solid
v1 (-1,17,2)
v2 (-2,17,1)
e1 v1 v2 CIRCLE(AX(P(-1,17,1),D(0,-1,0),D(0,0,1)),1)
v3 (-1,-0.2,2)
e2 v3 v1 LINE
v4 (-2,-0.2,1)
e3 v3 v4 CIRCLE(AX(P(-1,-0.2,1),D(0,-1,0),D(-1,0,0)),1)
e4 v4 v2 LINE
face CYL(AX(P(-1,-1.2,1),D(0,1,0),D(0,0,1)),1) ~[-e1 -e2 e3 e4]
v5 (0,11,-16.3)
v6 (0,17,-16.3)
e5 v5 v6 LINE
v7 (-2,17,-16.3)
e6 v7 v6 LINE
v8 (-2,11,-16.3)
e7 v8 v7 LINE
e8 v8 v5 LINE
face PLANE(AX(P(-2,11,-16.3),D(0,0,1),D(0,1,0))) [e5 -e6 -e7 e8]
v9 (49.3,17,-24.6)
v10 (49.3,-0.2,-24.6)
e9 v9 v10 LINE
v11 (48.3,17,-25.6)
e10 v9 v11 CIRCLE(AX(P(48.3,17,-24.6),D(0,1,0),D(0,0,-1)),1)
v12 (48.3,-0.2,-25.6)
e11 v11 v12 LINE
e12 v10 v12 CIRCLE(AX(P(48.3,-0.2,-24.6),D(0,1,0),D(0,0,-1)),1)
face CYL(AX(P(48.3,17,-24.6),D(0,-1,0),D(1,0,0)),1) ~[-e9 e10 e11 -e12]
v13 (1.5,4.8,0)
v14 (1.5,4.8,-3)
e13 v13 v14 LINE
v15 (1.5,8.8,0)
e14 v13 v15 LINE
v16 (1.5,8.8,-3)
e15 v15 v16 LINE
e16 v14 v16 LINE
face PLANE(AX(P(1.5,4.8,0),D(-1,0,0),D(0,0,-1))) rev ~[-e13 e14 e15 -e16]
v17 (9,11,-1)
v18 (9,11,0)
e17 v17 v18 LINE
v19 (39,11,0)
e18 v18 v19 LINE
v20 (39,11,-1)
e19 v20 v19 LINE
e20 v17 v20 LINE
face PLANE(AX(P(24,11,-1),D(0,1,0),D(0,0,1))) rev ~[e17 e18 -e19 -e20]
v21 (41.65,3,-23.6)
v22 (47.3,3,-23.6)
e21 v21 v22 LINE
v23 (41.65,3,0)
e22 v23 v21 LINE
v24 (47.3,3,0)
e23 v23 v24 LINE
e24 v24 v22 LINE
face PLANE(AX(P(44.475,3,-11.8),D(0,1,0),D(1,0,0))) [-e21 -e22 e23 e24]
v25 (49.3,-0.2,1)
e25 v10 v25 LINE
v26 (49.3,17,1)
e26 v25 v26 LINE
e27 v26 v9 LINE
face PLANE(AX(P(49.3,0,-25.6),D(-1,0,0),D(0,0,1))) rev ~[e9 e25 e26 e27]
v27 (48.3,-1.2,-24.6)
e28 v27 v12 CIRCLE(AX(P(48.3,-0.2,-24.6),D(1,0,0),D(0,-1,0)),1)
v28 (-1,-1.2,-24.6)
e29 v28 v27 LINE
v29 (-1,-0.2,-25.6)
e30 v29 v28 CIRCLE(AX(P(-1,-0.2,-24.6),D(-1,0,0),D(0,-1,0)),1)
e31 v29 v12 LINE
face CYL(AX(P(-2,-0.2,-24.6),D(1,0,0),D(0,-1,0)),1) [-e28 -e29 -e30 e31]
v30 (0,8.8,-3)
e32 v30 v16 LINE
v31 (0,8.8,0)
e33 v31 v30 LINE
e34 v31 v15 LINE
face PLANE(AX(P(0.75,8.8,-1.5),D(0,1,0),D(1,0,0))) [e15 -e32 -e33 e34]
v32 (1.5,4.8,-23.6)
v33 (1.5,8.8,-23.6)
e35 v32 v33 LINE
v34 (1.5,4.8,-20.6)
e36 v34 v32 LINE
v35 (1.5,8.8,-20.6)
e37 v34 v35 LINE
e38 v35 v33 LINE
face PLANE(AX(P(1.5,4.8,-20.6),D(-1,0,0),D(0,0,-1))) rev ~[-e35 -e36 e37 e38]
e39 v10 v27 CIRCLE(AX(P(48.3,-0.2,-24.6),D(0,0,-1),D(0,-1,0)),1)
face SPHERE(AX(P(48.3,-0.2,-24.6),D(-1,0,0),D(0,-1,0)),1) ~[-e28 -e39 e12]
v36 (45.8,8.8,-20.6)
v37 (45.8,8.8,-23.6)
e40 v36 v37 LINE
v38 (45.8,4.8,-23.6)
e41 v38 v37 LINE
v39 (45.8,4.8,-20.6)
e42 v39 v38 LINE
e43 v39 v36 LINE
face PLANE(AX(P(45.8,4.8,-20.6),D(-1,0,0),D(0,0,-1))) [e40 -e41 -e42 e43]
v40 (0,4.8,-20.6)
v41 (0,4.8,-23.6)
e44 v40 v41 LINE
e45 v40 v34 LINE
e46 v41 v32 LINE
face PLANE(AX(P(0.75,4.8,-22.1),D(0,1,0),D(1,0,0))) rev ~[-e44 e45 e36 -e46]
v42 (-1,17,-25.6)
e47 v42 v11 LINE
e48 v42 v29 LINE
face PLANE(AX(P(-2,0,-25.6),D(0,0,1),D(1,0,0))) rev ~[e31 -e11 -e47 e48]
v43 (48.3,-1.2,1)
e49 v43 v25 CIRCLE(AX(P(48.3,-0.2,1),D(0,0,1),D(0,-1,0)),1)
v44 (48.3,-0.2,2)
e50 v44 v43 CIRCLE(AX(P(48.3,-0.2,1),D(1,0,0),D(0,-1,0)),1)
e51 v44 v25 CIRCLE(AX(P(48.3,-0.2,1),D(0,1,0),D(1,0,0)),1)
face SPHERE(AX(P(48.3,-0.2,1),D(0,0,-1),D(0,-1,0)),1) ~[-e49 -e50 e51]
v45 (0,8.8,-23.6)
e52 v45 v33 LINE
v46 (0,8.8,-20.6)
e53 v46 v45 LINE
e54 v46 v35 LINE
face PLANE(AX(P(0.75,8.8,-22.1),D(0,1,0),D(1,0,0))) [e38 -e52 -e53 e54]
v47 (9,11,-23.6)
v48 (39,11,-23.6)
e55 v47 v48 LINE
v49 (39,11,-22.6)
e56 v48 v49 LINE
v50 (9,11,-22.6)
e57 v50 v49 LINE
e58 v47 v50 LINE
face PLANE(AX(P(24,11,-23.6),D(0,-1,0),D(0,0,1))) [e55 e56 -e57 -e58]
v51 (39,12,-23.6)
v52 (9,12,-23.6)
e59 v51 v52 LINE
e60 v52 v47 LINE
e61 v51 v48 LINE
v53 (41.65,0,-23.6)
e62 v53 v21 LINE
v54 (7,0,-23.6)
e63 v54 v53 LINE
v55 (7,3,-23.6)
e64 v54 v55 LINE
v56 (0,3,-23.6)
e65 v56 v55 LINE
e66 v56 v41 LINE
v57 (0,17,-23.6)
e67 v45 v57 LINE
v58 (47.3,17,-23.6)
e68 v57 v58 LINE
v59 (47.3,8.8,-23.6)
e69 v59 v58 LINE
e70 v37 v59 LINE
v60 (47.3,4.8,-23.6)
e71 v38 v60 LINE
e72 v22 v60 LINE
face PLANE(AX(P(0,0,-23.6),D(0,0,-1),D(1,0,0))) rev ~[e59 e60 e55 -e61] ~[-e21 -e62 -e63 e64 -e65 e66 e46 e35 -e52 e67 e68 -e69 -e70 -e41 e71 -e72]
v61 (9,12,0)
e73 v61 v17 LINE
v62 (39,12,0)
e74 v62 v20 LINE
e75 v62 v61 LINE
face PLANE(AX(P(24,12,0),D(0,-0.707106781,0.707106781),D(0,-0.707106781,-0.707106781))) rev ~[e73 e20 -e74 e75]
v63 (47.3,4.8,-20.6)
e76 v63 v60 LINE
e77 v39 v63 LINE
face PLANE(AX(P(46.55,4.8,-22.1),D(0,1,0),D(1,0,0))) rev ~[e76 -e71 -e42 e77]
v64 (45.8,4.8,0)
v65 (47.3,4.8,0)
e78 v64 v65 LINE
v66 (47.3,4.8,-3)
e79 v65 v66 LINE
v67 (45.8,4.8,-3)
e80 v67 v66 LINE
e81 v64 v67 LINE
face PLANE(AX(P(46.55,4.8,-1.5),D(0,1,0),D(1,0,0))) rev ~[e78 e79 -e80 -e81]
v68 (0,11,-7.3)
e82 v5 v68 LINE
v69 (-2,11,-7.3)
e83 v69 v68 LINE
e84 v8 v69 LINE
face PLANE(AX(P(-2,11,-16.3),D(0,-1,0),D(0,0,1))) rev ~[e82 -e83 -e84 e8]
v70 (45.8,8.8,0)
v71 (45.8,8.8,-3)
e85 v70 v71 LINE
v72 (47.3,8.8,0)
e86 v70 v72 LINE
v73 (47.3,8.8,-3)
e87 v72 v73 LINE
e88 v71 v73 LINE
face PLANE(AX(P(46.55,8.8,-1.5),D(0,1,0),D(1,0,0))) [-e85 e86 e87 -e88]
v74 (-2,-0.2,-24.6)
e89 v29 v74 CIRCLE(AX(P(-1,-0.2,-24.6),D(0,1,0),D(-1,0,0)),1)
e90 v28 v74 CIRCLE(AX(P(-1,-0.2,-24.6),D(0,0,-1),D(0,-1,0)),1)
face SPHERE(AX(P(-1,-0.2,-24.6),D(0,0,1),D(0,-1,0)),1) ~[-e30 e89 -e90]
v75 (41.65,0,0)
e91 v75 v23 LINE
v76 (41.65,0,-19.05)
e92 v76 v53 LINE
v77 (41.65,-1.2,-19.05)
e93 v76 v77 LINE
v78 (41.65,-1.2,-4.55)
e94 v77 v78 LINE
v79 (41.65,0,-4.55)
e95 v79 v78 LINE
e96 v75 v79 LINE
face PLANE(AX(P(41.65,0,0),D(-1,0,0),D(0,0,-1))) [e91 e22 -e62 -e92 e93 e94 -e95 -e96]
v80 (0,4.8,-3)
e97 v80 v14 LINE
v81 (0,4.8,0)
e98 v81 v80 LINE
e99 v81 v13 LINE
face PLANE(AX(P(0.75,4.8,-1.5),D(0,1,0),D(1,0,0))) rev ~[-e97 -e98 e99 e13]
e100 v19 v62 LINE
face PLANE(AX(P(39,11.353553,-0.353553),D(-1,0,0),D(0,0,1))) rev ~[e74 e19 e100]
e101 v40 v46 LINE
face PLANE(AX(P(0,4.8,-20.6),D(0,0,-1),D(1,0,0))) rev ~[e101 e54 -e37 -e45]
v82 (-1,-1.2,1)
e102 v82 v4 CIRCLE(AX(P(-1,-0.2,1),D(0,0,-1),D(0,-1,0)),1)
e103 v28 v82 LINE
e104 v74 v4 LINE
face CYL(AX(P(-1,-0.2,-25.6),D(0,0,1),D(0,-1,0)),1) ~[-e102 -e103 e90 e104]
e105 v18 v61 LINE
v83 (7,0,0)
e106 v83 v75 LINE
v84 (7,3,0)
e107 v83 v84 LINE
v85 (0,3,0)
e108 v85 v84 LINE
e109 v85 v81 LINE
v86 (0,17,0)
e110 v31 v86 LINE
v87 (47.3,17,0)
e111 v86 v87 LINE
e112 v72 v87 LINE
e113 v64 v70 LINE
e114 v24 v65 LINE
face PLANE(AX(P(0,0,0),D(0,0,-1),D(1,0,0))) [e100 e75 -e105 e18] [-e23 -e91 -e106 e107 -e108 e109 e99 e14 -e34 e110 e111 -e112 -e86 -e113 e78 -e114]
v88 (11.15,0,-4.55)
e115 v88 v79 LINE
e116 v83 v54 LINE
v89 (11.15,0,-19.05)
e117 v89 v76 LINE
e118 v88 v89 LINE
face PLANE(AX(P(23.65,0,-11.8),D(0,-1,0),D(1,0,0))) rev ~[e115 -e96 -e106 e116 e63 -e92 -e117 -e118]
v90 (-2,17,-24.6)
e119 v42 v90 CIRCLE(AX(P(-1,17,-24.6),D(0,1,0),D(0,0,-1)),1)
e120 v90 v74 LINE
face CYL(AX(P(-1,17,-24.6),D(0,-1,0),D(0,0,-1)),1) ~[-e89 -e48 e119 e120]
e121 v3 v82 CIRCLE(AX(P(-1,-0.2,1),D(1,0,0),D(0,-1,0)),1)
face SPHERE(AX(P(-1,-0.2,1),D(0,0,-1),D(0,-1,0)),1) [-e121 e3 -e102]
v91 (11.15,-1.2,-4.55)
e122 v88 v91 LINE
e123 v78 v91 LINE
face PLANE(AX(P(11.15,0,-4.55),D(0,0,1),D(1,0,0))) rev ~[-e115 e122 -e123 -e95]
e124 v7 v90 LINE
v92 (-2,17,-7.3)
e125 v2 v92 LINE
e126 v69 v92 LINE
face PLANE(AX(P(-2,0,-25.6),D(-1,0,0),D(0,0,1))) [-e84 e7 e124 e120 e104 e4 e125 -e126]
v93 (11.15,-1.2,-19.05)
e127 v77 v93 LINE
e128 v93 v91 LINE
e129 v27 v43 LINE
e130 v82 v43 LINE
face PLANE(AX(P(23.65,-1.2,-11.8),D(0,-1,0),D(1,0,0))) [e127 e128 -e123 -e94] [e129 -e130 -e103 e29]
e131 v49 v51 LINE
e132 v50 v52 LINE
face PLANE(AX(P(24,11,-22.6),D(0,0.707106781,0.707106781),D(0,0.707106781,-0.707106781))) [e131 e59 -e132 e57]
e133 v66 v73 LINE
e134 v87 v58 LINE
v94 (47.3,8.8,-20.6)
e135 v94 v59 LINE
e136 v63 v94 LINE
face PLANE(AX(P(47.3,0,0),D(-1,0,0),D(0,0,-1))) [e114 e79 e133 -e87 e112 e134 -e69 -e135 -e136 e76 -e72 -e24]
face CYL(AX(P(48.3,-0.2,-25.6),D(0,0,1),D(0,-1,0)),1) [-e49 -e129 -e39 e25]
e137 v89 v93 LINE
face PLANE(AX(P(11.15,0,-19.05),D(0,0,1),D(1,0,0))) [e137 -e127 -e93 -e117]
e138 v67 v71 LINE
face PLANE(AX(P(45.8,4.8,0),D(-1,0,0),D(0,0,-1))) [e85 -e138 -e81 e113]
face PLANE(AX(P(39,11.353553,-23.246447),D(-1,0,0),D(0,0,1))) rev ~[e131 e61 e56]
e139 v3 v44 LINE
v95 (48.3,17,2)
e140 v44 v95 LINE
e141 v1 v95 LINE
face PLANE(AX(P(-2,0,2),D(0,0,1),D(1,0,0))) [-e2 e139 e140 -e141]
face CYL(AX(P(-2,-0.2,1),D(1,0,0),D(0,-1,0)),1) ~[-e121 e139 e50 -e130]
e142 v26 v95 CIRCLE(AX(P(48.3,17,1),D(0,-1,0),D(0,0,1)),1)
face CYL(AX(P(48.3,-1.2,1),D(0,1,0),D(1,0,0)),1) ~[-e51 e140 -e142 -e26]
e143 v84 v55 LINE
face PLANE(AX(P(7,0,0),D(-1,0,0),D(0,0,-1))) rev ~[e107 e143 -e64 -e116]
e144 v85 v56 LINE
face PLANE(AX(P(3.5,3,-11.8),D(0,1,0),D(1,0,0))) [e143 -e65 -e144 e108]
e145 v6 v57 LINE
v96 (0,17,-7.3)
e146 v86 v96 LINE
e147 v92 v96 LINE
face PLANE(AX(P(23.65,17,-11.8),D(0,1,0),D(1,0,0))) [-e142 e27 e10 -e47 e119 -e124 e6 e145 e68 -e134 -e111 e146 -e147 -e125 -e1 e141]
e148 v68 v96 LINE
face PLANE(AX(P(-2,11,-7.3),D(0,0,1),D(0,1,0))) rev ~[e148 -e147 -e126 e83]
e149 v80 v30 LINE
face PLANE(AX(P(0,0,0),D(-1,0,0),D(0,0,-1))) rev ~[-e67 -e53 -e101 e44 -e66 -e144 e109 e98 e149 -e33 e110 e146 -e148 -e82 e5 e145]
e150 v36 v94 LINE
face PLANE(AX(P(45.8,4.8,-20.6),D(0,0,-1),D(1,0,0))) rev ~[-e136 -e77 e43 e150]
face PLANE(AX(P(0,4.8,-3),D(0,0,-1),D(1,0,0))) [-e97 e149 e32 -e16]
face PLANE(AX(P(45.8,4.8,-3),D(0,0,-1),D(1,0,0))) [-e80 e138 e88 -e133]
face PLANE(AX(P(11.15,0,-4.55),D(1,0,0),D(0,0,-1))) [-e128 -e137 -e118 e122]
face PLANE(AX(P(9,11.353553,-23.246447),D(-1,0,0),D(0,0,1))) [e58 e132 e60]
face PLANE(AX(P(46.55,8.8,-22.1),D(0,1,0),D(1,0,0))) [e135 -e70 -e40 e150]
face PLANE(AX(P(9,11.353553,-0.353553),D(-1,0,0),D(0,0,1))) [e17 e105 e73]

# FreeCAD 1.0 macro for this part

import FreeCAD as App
import Part
import Sketcher


def edges_at(feature, points):
    """Names of the edges that pass closest to the given points."""
    edges = feature.Shape.Edges
    near = lambda p: min(range(len(edges)), key=lambda i: edges[i].distToShape(Part.Vertex(*p))[0])
    return sorted({f"Edge{near(p) + 1}" for p in points})


def add_polygon(sketch, points):
    """Adds a closed chain of lines whose ends are joined by coincident constraints."""
    first, n = sketch.GeometryCount, len(points)
    for a, b in zip(points, points[1:] + points[:1]):
        sketch.addGeometry(Part.LineSegment(App.Vector(*a, 0), App.Vector(*b, 0)), False)
    for i in range(n):
        sketch.addConstraint(Sketcher.Constraint("Coincident", first + i, 2, first + (i + 1) % n, 1))

doc = App.newDocument("Part")
body = doc.addObject("PartDesign::Body", "Body")

sketch1 = doc.addObject("Sketcher::SketchObject", "Sketch")
body.addObject(sketch1)
sketch1.AttachmentSupport = (doc.XZ_Plane, [""])
sketch1.MapMode = "FlatFace"
add_polygon(sketch1, [(-2, -25.6), (-2, 2), (49.3, 2), (49.3, -25.6)])
add_polygon(sketch1, [(47.3, 0), (0, 0), (0, -23.6), (47.3, -23.6)])
sketch1.addConstraint([
    Sketcher.Constraint("Vertical", 0),
    Sketcher.Constraint("Horizontal", 1),
    Sketcher.Constraint("Vertical", 2),
    Sketcher.Constraint("Horizontal", 3),
    Sketcher.Constraint("Horizontal", 4),
    Sketcher.Constraint("Vertical", 5),
    Sketcher.Constraint("Horizontal", 6),
    Sketcher.Constraint("Vertical", 7),
    Sketcher.Constraint("Coincident", 4, 2, -1, 1),
    Sketcher.Constraint("DistanceX", 1, 1, 1, 2, 51.3),
    Sketcher.Constraint("DistanceX", 4, 2, 4, 1, 47.3),
    Sketcher.Constraint("DistanceY", 0, 1, 0, 2, 27.6),
    Sketcher.Constraint("DistanceY", 5, 2, 5, 1, 23.6),
    Sketcher.Constraint("DistanceX", 0, 2, -1, 1, 2.0),
    Sketcher.Constraint("DistanceY", -1, 1, 0, 2, 2.0),
])
pad1 = doc.addObject("PartDesign::Pad", "Pad")
body.addObject(pad1)
pad1.Profile = sketch1
pad1.Length = 17
pad1.Reversed = True

sketch2 = doc.addObject("Sketcher::SketchObject", "Sketch001")
body.addObject(sketch2)
sketch2.AttachmentSupport = (doc.XZ_Plane, [""])
sketch2.MapMode = "FlatFace"
add_polygon(sketch2, [(-2, 2), (-2, -25.6), (49.3, -25.6), (49.3, 2)])
sketch2.addConstraint([
    Sketcher.Constraint("Vertical", 0),
    Sketcher.Constraint("Horizontal", 1),
    Sketcher.Constraint("Vertical", 2),
    Sketcher.Constraint("Horizontal", 3),
    Sketcher.Constraint("DistanceX", 1, 1, 1, 2, 51.3),
    Sketcher.Constraint("DistanceY", 0, 2, 0, 1, 27.6),
    Sketcher.Constraint("DistanceX", 0, 2, -1, 1, 2.0),
    Sketcher.Constraint("DistanceY", -1, 1, 2, 2, 2.0),
])
pad2 = doc.addObject("PartDesign::Pad", "Pad001")
body.addObject(pad2)
pad2.Profile = sketch2
pad2.Length = 1.2

sketch3 = doc.addObject("Sketcher::SketchObject", "Sketch002")
body.addObject(sketch3)
sketch3.AttachmentSupport = (doc.XZ_Plane, [""])
sketch3.MapMode = "FlatFace"
add_polygon(sketch3, [(11.15, -19.05), (11.15, -4.55), (41.65, -4.55), (41.65, -19.05)])
sketch3.addConstraint([
    Sketcher.Constraint("Vertical", 0),
    Sketcher.Constraint("Horizontal", 1),
    Sketcher.Constraint("Vertical", 2),
    Sketcher.Constraint("Horizontal", 3),
    Sketcher.Constraint("DistanceX", 1, 1, 1, 2, 30.5),
    Sketcher.Constraint("DistanceY", 0, 1, 0, 2, 14.5),
    Sketcher.Constraint("DistanceX", -1, 1, 0, 2, 11.15),
    Sketcher.Constraint("DistanceY", 0, 2, -1, 1, 4.55),
])
pocket1 = doc.addObject("PartDesign::Pocket", "Pocket")
body.addObject(pocket1)
pocket1.Profile = sketch3
pocket1.Length = 10
pocket1.Reversed = True

sketch4 = doc.addObject("Sketcher::SketchObject", "Sketch003")
body.addObject(sketch4)
sketch4.AttachmentSupport = (doc.XZ_Plane, [""])
sketch4.MapMode = "FlatFace"
add_polygon(sketch4, [(0, -23.6), (0, 0), (7, 0), (7, -23.6)])
add_polygon(sketch4, [(41.65, -23.6), (41.65, 0), (47.3, 0), (47.3, -23.6)])
sketch4.addConstraint([
    Sketcher.Constraint("Vertical", 0),
    Sketcher.Constraint("Horizontal", 1),
    Sketcher.Constraint("Vertical", 2),
    Sketcher.Constraint("Horizontal", 3),
    Sketcher.Constraint("Vertical", 4),
    Sketcher.Constraint("Horizontal", 5),
    Sketcher.Constraint("Vertical", 6),
    Sketcher.Constraint("Horizontal", 7),
    Sketcher.Constraint("Coincident", 0, 2, -1, 1),
    Sketcher.Constraint("PointOnObject", 4, 2, -1),
    Sketcher.Constraint("Horizontal", 3, 2, 6, 2),
    Sketcher.Constraint("DistanceX", 1, 1, 1, 2, 7.0),
    Sketcher.Constraint("DistanceY", 0, 1, 0, 2, 23.6),
    Sketcher.Constraint("DistanceX", 5, 1, 5, 2, 5.65),
    Sketcher.Constraint("DistanceX", -1, 1, 5, 2, 47.3),
])
pad3 = doc.addObject("PartDesign::Pad", "Pad002")
body.addObject(pad3)
pad3.Profile = sketch4
pad3.Length = 3
pad3.Reversed = True

sketch5 = doc.addObject("Sketcher::SketchObject", "Sketch004")
body.addObject(sketch5)
sketch5.AttachmentSupport = (doc.YZ_Plane, [""])
sketch5.MapMode = "FlatFace"
sketch5.AttachmentOffset = App.Placement(App.Vector(0, 0, 24), App.Rotation())
add_polygon(sketch5, [(11, -22.6), (12, -23.6), (11, -23.6)])
add_polygon(sketch5, [(12, 0), (11, -1), (11, 0)])
sketch5.addConstraint([
    Sketcher.Constraint("Horizontal", 1),
    Sketcher.Constraint("Vertical", 2),
    Sketcher.Constraint("Vertical", 4),
    Sketcher.Constraint("Horizontal", 5),
    Sketcher.Constraint("PointOnObject", 4, 2, -1),
    Sketcher.Constraint("Perpendicular", 0, 3),
    Sketcher.Constraint("Vertical", 2, 2, 3, 2),
    Sketcher.Constraint("Vertical", 0, 2, 5, 2),
    Sketcher.Constraint("Equal", 5, 2),
    Sketcher.Constraint("DistanceX", 1, 2, 1, 1, 1.0),
    Sketcher.Constraint("DistanceX", -1, 1, 0, 2, 12.0),
    Sketcher.Constraint("DistanceY", 0, 2, -1, 1, 23.6),
])
pad4 = doc.addObject("PartDesign::Pad", "Pad003")
body.addObject(pad4)
pad4.Profile = sketch5
pad4.Type = "TwoLengths"
pad4.Length = 15
pad4.Length2 = 15
pad4.Reversed = True
doc.recompute()

fillet = doc.addObject("PartDesign::Fillet", "Fillet")
body.addObject(fillet)
fillet.Base = (pad4, edges_at(pad4, [
    (-2, -1.2, -11.8),
    (23.65, -1.2, -25.6),
    (49.3, -1.2, -11.8),
    (23.65, -1.2, 2),
    (-2, 7.9, -25.6),
    (49.3, 7.9, -25.6),
    (49.3, 7.9, 2),
    (-2, 7.9, 2),
]))
fillet.Radius = 1

sketch6 = doc.addObject("Sketcher::SketchObject", "Sketch005")
body.addObject(sketch6)
sketch6.AttachmentSupport = (doc.YZ_Plane, [""])
sketch6.MapMode = "FlatFace"
sketch6.AttachmentOffset = App.Placement(App.Vector(0, 0, -2), App.Rotation())
add_polygon(sketch6, [(23, -16.3), (11, -16.3), (11, -7.3), (23, -7.3)])
sketch6.addConstraint([
    Sketcher.Constraint("Horizontal", 0),
    Sketcher.Constraint("Vertical", 1),
    Sketcher.Constraint("Horizontal", 2),
    Sketcher.Constraint("Vertical", 3),
    Sketcher.Constraint("DistanceX", 0, 2, 0, 1, 12.0),
    Sketcher.Constraint("DistanceY", 1, 1, 1, 2, 9.0),
    Sketcher.Constraint("DistanceX", -1, 1, 0, 2, 11.0),
    Sketcher.Constraint("DistanceY", 0, 2, -1, 1, 16.3),
])
pocket2 = doc.addObject("PartDesign::Pocket", "Pocket001")
body.addObject(pocket2)
pocket2.Profile = sketch6
pocket2.Length = 10
pocket2.Reversed = True

sketch7 = doc.addObject("Sketcher::SketchObject", "Sketch006")
body.addObject(sketch7)
sketch7.AttachmentSupport = (doc.XZ_Plane, [""])
sketch7.MapMode = "FlatFace"
sketch7.AttachmentOffset = App.Placement(App.Vector(0, 0, -4.8), App.Rotation())
add_polygon(sketch7, [(0, -23.6), (0, -20.6), (1.5, -20.6), (1.5, -23.6)])
add_polygon(sketch7, [(45.8, -23.6), (45.8, -20.6), (47.3, -20.6), (47.3, -23.6)])
add_polygon(sketch7, [(45.8, -3), (45.8, 0), (47.3, 0), (47.3, -3)])
add_polygon(sketch7, [(0, -3), (0, 0), (1.5, 0), (1.5, -3)])
sketch7.addConstraint([
    Sketcher.Constraint("Vertical", 0),
    Sketcher.Constraint("Horizontal", 1),
    Sketcher.Constraint("Vertical", 2),
    Sketcher.Constraint("Horizontal", 3),
    Sketcher.Constraint("Vertical", 4),
    Sketcher.Constraint("Horizontal", 5),
    Sketcher.Constraint("Vertical", 6),
    Sketcher.Constraint("Horizontal", 7),
    Sketcher.Constraint("Vertical", 8),
    Sketcher.Constraint("Horizontal", 9),
    Sketcher.Constraint("Vertical", 10),
    Sketcher.Constraint("Horizontal", 11),
    Sketcher.Constraint("Vertical", 12),
    Sketcher.Constraint("Horizontal", 13),
    Sketcher.Constraint("Vertical", 14),
    Sketcher.Constraint("Horizontal", 15),
    Sketcher.Constraint("Coincident", 12, 2, -1, 1),
    Sketcher.Constraint("PointOnObject", 0, 2, -2),
    Sketcher.Constraint("PointOnObject", 8, 2, -1),
    Sketcher.Constraint("Horizontal", 1, 2, 4, 2),
    Sketcher.Constraint("Horizontal", 3, 2, 6, 2),
    Sketcher.Constraint("Horizontal", 11, 2, 14, 2),
    Sketcher.Constraint("Vertical", 7, 2, 8, 2),
    Sketcher.Constraint("Vertical", 6, 2, 9, 2),
    Sketcher.Constraint("Vertical", 2, 2, 13, 2),
    Sketcher.Constraint("Equal", 3, 5),
    Sketcher.Constraint("Equal", 6, 8),
    Sketcher.Constraint("DistanceY", 0, 1, 0, 2, 3.0),
    Sketcher.Constraint("DistanceX", 1, 1, 1, 2, 1.5),
    Sketcher.Constraint("DistanceY", 0, 2, -1, 1, 20.6),
    Sketcher.Constraint("DistanceX", -1, 1, 4, 2, 45.8),
])
pad5 = doc.addObject("PartDesign::Pad", "Pad004")
body.addObject(pad5)
pad5.Profile = sketch7
pad5.Length = 4
pad5.Reversed = True

doc.recompute()
